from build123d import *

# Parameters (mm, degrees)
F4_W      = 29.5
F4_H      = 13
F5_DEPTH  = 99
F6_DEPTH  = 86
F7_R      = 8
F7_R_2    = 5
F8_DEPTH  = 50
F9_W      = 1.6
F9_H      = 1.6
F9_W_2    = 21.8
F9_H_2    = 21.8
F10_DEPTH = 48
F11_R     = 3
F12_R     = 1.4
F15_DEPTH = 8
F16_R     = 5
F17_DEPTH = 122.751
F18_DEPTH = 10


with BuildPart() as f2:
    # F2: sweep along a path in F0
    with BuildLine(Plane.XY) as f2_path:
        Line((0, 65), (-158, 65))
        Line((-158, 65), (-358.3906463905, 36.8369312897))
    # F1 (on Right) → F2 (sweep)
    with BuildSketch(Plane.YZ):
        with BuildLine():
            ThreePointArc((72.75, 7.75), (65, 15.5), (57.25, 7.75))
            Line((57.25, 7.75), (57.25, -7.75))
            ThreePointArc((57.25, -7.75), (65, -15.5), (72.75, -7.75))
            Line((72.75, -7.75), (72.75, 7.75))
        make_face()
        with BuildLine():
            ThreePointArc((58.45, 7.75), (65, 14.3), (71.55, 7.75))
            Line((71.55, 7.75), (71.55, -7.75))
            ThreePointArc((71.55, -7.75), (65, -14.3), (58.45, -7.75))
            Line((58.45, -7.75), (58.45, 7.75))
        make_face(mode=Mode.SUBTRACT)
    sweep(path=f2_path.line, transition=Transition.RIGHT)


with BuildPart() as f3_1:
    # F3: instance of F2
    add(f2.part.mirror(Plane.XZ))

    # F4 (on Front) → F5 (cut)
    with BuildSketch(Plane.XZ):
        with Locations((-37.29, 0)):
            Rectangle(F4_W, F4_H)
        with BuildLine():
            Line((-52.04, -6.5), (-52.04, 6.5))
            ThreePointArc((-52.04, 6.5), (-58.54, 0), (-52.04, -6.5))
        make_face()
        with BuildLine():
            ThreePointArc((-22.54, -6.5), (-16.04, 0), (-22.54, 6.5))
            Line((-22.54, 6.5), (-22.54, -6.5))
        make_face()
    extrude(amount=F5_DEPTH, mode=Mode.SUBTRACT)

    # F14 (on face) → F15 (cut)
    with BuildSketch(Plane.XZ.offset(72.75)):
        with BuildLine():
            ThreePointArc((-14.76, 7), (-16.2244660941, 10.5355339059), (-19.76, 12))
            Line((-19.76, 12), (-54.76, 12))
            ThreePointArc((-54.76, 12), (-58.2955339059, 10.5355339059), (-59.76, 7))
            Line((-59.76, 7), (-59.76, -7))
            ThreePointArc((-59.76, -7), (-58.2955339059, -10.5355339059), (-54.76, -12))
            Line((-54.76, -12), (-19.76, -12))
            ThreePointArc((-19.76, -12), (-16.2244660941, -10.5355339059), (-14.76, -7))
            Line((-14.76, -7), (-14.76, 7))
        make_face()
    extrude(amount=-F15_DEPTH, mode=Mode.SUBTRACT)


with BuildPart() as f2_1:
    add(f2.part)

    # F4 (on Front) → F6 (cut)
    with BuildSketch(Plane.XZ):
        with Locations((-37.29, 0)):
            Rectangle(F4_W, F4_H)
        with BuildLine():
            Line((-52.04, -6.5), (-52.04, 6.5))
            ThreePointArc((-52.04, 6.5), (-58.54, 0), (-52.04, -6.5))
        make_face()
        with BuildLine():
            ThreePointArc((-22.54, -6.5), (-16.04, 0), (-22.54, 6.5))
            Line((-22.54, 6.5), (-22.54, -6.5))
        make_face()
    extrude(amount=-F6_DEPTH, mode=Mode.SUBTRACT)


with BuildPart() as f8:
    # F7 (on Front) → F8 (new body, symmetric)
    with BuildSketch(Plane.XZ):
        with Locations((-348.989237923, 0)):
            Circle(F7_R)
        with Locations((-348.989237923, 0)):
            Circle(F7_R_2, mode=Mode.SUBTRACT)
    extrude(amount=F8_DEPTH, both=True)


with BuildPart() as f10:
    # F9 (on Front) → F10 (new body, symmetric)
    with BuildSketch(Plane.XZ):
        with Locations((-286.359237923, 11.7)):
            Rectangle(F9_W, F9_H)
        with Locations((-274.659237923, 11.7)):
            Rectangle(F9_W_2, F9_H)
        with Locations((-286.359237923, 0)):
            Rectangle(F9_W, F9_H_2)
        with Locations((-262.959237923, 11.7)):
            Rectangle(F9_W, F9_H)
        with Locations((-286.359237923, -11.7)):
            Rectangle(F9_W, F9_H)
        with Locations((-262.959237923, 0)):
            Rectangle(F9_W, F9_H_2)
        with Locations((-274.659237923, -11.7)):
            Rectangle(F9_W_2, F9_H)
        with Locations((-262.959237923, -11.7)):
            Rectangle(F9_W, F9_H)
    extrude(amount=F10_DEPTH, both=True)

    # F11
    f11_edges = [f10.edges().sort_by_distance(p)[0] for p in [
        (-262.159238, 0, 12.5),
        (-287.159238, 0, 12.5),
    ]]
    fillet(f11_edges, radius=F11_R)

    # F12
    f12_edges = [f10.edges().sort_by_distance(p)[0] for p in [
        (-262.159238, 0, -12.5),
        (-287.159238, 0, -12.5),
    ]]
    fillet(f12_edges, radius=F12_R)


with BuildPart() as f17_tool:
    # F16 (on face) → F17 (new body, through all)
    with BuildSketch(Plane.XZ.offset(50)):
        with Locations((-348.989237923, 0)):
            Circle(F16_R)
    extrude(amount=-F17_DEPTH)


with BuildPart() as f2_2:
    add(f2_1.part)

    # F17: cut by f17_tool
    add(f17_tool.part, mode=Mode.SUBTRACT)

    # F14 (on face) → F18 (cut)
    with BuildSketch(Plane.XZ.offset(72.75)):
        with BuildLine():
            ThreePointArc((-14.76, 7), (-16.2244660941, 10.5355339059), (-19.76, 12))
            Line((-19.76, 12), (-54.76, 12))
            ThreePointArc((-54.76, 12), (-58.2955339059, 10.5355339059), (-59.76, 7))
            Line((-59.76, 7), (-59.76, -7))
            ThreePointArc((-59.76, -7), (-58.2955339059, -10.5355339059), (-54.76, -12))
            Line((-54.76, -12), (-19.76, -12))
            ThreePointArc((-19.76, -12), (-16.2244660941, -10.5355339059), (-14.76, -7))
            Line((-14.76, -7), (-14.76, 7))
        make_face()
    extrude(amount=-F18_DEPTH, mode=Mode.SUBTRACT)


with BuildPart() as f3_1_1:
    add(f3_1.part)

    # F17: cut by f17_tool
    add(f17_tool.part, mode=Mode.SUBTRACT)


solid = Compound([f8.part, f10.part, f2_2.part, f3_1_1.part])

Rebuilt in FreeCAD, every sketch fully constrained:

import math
import FreeCAD as App
import Part
import Sketcher

V = App.Vector
Q = App.Units.Quantity


def edges_at(feature, points):
    """Names of the edges that pass closest to the given points."""
    edges = feature.Shape.Edges
    near = lambda p: min(range(len(edges)), key=lambda i: edges[i].distToShape(Part.Vertex(*p))[0])
    return sorted({f"Edge{near(p) + 1}" for p in points})

doc = App.newDocument("Part")
params = doc.addObject("Spreadsheet::Sheet", "Params")
for row, (alias, value) in enumerate([
    ("sketch1_radius", "7.75 mm"),
    ("sketch1_radius2", "6.55 mm"),
    ("sketch1_height", "15.5 mm"),
    ("sketch2_width", "158 mm"),
    ("sketch2_length", "202.36 mm"),
    ("sketch3_radius", "6.5 mm"),
    ("sketch3_width", "29.5 mm"),
    ("pocket1_length", "99 mm"),
    ("sketch4_radius", "5 mm"),
    ("sketch4_width", "35 mm"),
    ("sketch4_height", "14 mm"),
    ("pocket2_length", "8 mm"),
    ("sketch5_radius", "6.5 mm"),
    ("sketch5_width", "29.5 mm"),
    ("pocket3_length", "86 mm"),
    ("sketch6_diameter", "16 mm"),
    ("sketch6_diameter2", "10 mm"),
    ("pad1_length", "100 mm"),
    ("sketch7_width", "25 mm"),
    ("sketch7_width2", "21.8 mm"),
    ("pad2_length", "96 mm"),
    ("fillet_radius", "3 mm"),
    ("fillet2_radius", "1.4 mm"),
    ("sketch8_diameter", "10 mm"),
    ("pad3_length", "122.751 mm"),
    ("sketch9_radius", "5 mm"),
    ("sketch9_width", "35 mm"),
    ("sketch9_height", "14 mm"),
    ("pocket4_length", "10 mm"),
], start=1):
    params.set(f"A{row}", alias)
    params.set(f"B{row}", "=" + value)
    params.setAlias(f"B{row}", alias)

body = doc.addObject("PartDesign::Body", "Body")

sketch1 = body.newObject("Sketcher::SketchObject", "Sketch")
sketch1.AttachmentSupport = (doc.getObject("YZ_Plane"), [""])
sketch1.MapMode = "FlatFace"
sketch1.addGeometry([
    Part.ArcOfCircle(Part.Circle(V(65, 8, 0), V(0, 0, 1), 8), math.radians(0), math.radians(180)),
    Part.LineSegment(V(57, 8, 0), V(57, -8, 0)),
    Part.ArcOfCircle(Part.Circle(V(65, -8, 0), V(0, 0, 1), 8), math.radians(180), math.radians(360)),
    Part.LineSegment(V(73, -8, 0), V(73, 8, 0)),
    Part.LineSegment(V(58, -8, 0), V(58, 8, 0)),
    Part.ArcOfCircle(Part.Circle(V(65, 8, 0), V(0, 0, 1), 7), math.radians(0), math.radians(180)),
    Part.LineSegment(V(72, 8, 0), V(72, -8, 0)),
    Part.ArcOfCircle(Part.Circle(V(65, -8, 0), V(0, 0, 1), 7), math.radians(180), math.radians(360)),
], False)
sketch1.addConstraint([
    Sketcher.Constraint("Tangent", 0, 2, 1, 1),
    Sketcher.Constraint("Tangent", 1, 2, 2, 1),
    Sketcher.Constraint("Tangent", 2, 2, 3, 1),
    Sketcher.Constraint("Tangent", 3, 2, 0, 1),
    Sketcher.Constraint("Tangent", 4, 2, 5, 2),
    Sketcher.Constraint("Tangent", 5, 1, 6, 1),
    Sketcher.Constraint("Tangent", 6, 2, 7, 2),
    Sketcher.Constraint("Tangent", 7, 1, 4, 1),
    Sketcher.Constraint("Vertical", 1),
    Sketcher.Constraint("Vertical", 3),
    Sketcher.Constraint("Vertical", 4),
    Sketcher.Constraint("Vertical", 6),
    Sketcher.Constraint("Coincident", 5, 3, 0, 3),
    Sketcher.Constraint("Horizontal", 7, 3, 1, 2),
    Sketcher.Constraint("Radius", 0, Q("7.75 mm")),
    Sketcher.Constraint("Radius", 5, Q("6.55 mm")),
    Sketcher.Constraint("DistanceY", 1, 2, 1, 1, Q("15.5 mm")),
    Sketcher.Constraint("DistanceX", -1, 1, 0, 3, Q("65 mm")),
    Sketcher.Constraint("DistanceY", -1, 1, 0, 3, Q("7.75 mm")),
])
sketch1.setExpression("Constraints[14]", "Params.sketch1_radius")
sketch1.setExpression("Constraints[15]", "Params.sketch1_radius2")
sketch1.setExpression("Constraints[16]", "Params.sketch1_height")

sketch2 = body.newObject("Sketcher::SketchObject", "Sketch001")
sketch2.AttachmentSupport = (doc.getObject("XY_Plane"), [""])
sketch2.MapMode = "FlatFace"
sketch2.addGeometry([
    Part.LineSegment(V(0, 65, 0), V(-158, 65, 0)),
    Part.LineSegment(V(-158, 65, 0), V(-358, 37, 0)),
], False)
sketch2.addConstraint([
    Sketcher.Constraint("Coincident", 0, 2, 1, 1),
    Sketcher.Constraint("Horizontal", 0),
    Sketcher.Constraint("PointOnObject", 0, 1, -2),
    Sketcher.Constraint("DistanceX", 0, 2, 0, 1, Q("158 mm")),
    Sketcher.Constraint("Angle", 1, Q("-172 deg")),
    Sketcher.Constraint("DistanceY", -1, 1, 0, 1, Q("65 mm")),
    Sketcher.Constraint("Distance", 1, Q("202.36 mm")),
])
sketch2.setExpression("Constraints[3]", "Params.sketch2_width")
sketch2.setExpression("Constraints[6]", "Params.sketch2_length")
doc.recompute()

additivepipe = body.newObject("PartDesign::AdditivePipe", "AdditivePipe")
additivepipe.Profile = sketch1
additivepipe.Spine = (sketch2, ["Edge1", "Edge2"])
additivepipe.Transition = "Right corner"
body2 = doc.addObject("PartDesign::Body", "Body001")
doc.recompute()

mirroring = doc.addObject("Part::Mirroring", "Mirroring")
mirroring.Source = body
mirroring.Base = V(0, 0, 0)
mirroring.Normal = V(0, -1, 0)
body2.BaseFeature = mirroring
doc.recompute()

sketch3 = body2.newObject("Sketcher::SketchObject", "Sketch002")
sketch3.AttachmentSupport = (doc.getObject("XZ_Plane001"), [""])
sketch3.MapMode = "FlatFace"
sketch3.addGeometry([
    Part.LineSegment(V(-52, -6, 0), V(-23, -6, 0)),
    Part.ArcOfCircle(Part.Circle(V(-23, 0, 0), V(0, 0, 1), 6), math.radians(-90), math.radians(90)),
    Part.LineSegment(V(-23, 6, 0), V(-52, 6, 0)),
    Part.ArcOfCircle(Part.Circle(V(-52, 0, 0), V(0, 0, 1), 6), math.radians(90), math.radians(270)),
], False)
sketch3.addConstraint([
    Sketcher.Constraint("Tangent", 0, 2, 1, 1),
    Sketcher.Constraint("Tangent", 1, 2, 2, 1),
    Sketcher.Constraint("Tangent", 2, 2, 3, 1),
    Sketcher.Constraint("Tangent", 3, 2, 0, 1),
    Sketcher.Constraint("Horizontal", 0),
    Sketcher.Constraint("Horizontal", 2),
    Sketcher.Constraint("PointOnObject", 1, 3, -1),
    Sketcher.Constraint("Radius", 1, Q("6.5 mm")),
    Sketcher.Constraint("DistanceX", 0, 1, 0, 2, Q("29.5 mm")),
    Sketcher.Constraint("DistanceX", 1, 3, -1, 1, Q("22.54 mm")),
])
sketch3.setExpression("Constraints[7]", "Params.sketch3_radius")
sketch3.setExpression("Constraints[8]", "Params.sketch3_width")
pocket1 = body2.newObject("PartDesign::Pocket", "Pocket")
pocket1.Profile = sketch3
pocket1.setExpression("Length", "Params.pocket1_length")
pocket1.Reversed = True

sketch4 = body2.newObject("Sketcher::SketchObject", "Sketch003")
sketch4.AttachmentSupport = (doc.getObject("XZ_Plane001"), [""])
sketch4.MapMode = "FlatFace"
sketch4.AttachmentOffset = App.Placement(V(0, 0, 72.75), App.Rotation())
sketch4.addGeometry([
    Part.ArcOfCircle(Part.Circle(V(-20, 7, 0), V(0, 0, 1), 5), math.radians(0), math.radians(90)),
    Part.LineSegment(V(-20, 12, 0), V(-55, 12, 0)),
    Part.ArcOfCircle(Part.Circle(V(-55, 7, 0), V(0, 0, 1), 5), math.radians(90), math.radians(180)),
    Part.LineSegment(V(-60, 7, 0), V(-60, -7, 0)),
    Part.ArcOfCircle(Part.Circle(V(-55, -7, 0), V(0, 0, 1), 5), math.radians(180), math.radians(270)),
    Part.LineSegment(V(-55, -12, 0), V(-20, -12, 0)),
    Part.ArcOfCircle(Part.Circle(V(-20, -7, 0), V(0, 0, 1), 5), math.radians(-90), math.radians(0)),
    Part.LineSegment(V(-15, -7, 0), V(-15, 7, 0)),
], False)
sketch4.addConstraint([
    Sketcher.Constraint("Tangent", 0, 2, 1, 1),
    Sketcher.Constraint("Tangent", 1, 2, 2, 1),
    Sketcher.Constraint("Tangent", 2, 2, 3, 1),
    Sketcher.Constraint("Tangent", 3, 2, 4, 1),
    Sketcher.Constraint("Tangent", 4, 2, 5, 1),
    Sketcher.Constraint("Tangent", 5, 2, 6, 1),
    Sketcher.Constraint("Tangent", 6, 2, 7, 1),
    Sketcher.Constraint("Tangent", 7, 2, 0, 1),
    Sketcher.Constraint("Horizontal", 1),
    Sketcher.Constraint("Vertical", 3),
    Sketcher.Constraint("Horizontal", 5),
    Sketcher.Constraint("Vertical", 7),
    Sketcher.Constraint("Equal", 0, 2),
    Sketcher.Constraint("Equal", 2, 4),
    Sketcher.Constraint("Equal", 4, 6),
    Sketcher.Constraint("Radius", 0, Q("5 mm")),
    Sketcher.Constraint("DistanceX", 1, 2, 1, 1, Q("35 mm")),
    Sketcher.Constraint("DistanceY", 3, 2, 3, 1, Q("14 mm")),
    Sketcher.Constraint("DistanceY", -1, 1, 0, 3, Q("7 mm")),
    Sketcher.Constraint("DistanceX", 0, 3, -1, 1, Q("19.76 mm")),
])
sketch4.setExpression("Constraints[15]", "Params.sketch4_radius")
sketch4.setExpression("Constraints[16]", "Params.sketch4_width")
sketch4.setExpression("Constraints[17]", "Params.sketch4_height")
pocket2 = body2.newObject("PartDesign::Pocket", "Pocket001")
pocket2.Profile = sketch4
pocket2.setExpression("Length", "Params.pocket2_length")

sketch5 = body.newObject("Sketcher::SketchObject", "Sketch004")
sketch5.AttachmentSupport = (doc.getObject("XZ_Plane"), [""])
sketch5.MapMode = "FlatFace"
sketch5.addGeometry([
    Part.LineSegment(V(-52, -6, 0), V(-23, -6, 0)),
    Part.ArcOfCircle(Part.Circle(V(-23, 0, 0), V(0, 0, 1), 6), math.radians(-90), math.radians(90)),
    Part.LineSegment(V(-23, 6, 0), V(-52, 6, 0)),
    Part.ArcOfCircle(Part.Circle(V(-52, 0, 0), V(0, 0, 1), 6), math.radians(90), math.radians(270)),
], False)
sketch5.addConstraint([
    Sketcher.Constraint("Tangent", 0, 2, 1, 1),
    Sketcher.Constraint("Tangent", 1, 2, 2, 1),
    Sketcher.Constraint("Tangent", 2, 2, 3, 1),
    Sketcher.Constraint("Tangent", 3, 2, 0, 1),
    Sketcher.Constraint("Horizontal", 0),
    Sketcher.Constraint("Horizontal", 2),
    Sketcher.Constraint("PointOnObject", 1, 3, -1),
    Sketcher.Constraint("Radius", 1, Q("6.5 mm")),
    Sketcher.Constraint("DistanceX", 0, 1, 0, 2, Q("29.5 mm")),
    Sketcher.Constraint("DistanceX", 1, 3, -1, 1, Q("22.54 mm")),
])
sketch5.setExpression("Constraints[7]", "Params.sketch5_radius")
sketch5.setExpression("Constraints[8]", "Params.sketch5_width")
pocket3 = body.newObject("PartDesign::Pocket", "Pocket002")
pocket3.Profile = sketch5
pocket3.setExpression("Length", "Params.pocket3_length")
body3 = doc.addObject("PartDesign::Body", "Body002")

sketch6 = body3.newObject("Sketcher::SketchObject", "Sketch005")
sketch6.AttachmentSupport = (doc.getObject("XZ_Plane002"), [""])
sketch6.MapMode = "FlatFace"
sketch6.addGeometry([
    Part.Circle(V(-349, 0, 0), V(0, 0, 1), 8),
    Part.Circle(V(-349, 0, 0), V(0, 0, 1), 5),
], False)
sketch6.addConstraint([
    Sketcher.Constraint("Coincident", 1, 3, 0, 3),
    Sketcher.Constraint("PointOnObject", 0, 3, -1),
    Sketcher.Constraint("Diameter", 0, Q("16 mm")),
    Sketcher.Constraint("Diameter", 1, Q("10 mm")),
    Sketcher.Constraint("DistanceX", 0, 3, -1, 1, Q("348.989238 mm")),
])
sketch6.setExpression("Constraints[2]", "Params.sketch6_diameter")
sketch6.setExpression("Constraints[3]", "Params.sketch6_diameter2")
pad1 = body3.newObject("PartDesign::Pad", "Pad")
pad1.Profile = sketch6
pad1.setExpression("Length", "Params.pad1_length")
pad1.Midplane = True
body4 = doc.addObject("PartDesign::Body", "Body003")

sketch7 = body4.newObject("Sketcher::SketchObject", "Sketch006")
sketch7.AttachmentSupport = (doc.getObject("XZ_Plane003"), [""])
sketch7.MapMode = "FlatFace"
sketch7.addGeometry([
    Part.LineSegment(V(-287, -12, 0), V(-262, -12, 0)),
    Part.LineSegment(V(-262, -12, 0), V(-262, 12, 0)),
    Part.LineSegment(V(-262, 12, 0), V(-287, 12, 0)),
    Part.LineSegment(V(-287, 12, 0), V(-287, -12, 0)),
    Part.LineSegment(V(-264, -11, 0), V(-286, -11, 0)),
    Part.LineSegment(V(-286, -11, 0), V(-286, 11, 0)),
    Part.LineSegment(V(-286, 11, 0), V(-264, 11, 0)),
    Part.LineSegment(V(-264, 11, 0), V(-264, -11, 0)),
], False)
sketch7.addConstraint([
    Sketcher.Constraint("Coincident", 0, 2, 1, 1),
    Sketcher.Constraint("Coincident", 1, 2, 2, 1),
    Sketcher.Constraint("Coincident", 2, 2, 3, 1),
    Sketcher.Constraint("Coincident", 3, 2, 0, 1),
    Sketcher.Constraint("Coincident", 4, 2, 5, 1),
    Sketcher.Constraint("Coincident", 5, 2, 6, 1),
    Sketcher.Constraint("Coincident", 6, 2, 7, 1),
    Sketcher.Constraint("Coincident", 7, 2, 4, 1),
    Sketcher.Constraint("Horizontal", 0),
    Sketcher.Constraint("Vertical", 1),
    Sketcher.Constraint("Horizontal", 2),
    Sketcher.Constraint("Vertical", 3),
    Sketcher.Constraint("Horizontal", 4),
    Sketcher.Constraint("Vertical", 5),
    Sketcher.Constraint("Horizontal", 6),
    Sketcher.Constraint("Vertical", 7),
    Sketcher.Constraint("Equal", 2, 1),
    Sketcher.Constraint("Equal", 6, 5),
    Sketcher.Constraint("DistanceX", 0, 1, 0, 2, Q("25 mm")),
    Sketcher.Constraint("DistanceX", 4, 2, 4, 1, Q("21.8 mm")),
    Sketcher.Constraint("DistanceY", 0, 2, -1, 1, Q("12.5 mm")),
    Sketcher.Constraint("DistanceY", 4, 2, -1, 1, Q("10.9 mm")),
    Sketcher.Constraint("DistanceX", 3, 2, 4, 2, Q("1.6 mm")),
    Sketcher.Constraint("DistanceX", 0, 2, -1, 1, Q("262.159238 mm")),
])
sketch7.setExpression("Constraints[18]", "Params.sketch7_width")
sketch7.setExpression("Constraints[19]", "Params.sketch7_width2")
pad2 = body4.newObject("PartDesign::Pad", "Pad001")
pad2.Profile = sketch7
pad2.setExpression("Length", "Params.pad2_length")
pad2.Midplane = True
doc.recompute()

fillet = body4.newObject("PartDesign::Fillet", "Fillet")
fillet.Base = (pad2, edges_at(pad2, [(-262.159, 0, 12.5), (-287.159, 0, 12.5)]))
fillet.setExpression("Radius", "Params.fillet_radius")
doc.recompute()

fillet2 = body4.newObject("PartDesign::Fillet", "Fillet001")
fillet2.Base = (fillet, edges_at(fillet, [(-262.159, 0, -12.5), (-287.159, 0, -12.5)]))
fillet2.setExpression("Radius", "Params.fillet2_radius")
body5 = doc.addObject("PartDesign::Body", "Body004")

sketch8 = body5.newObject("Sketcher::SketchObject", "Sketch007")
sketch8.AttachmentSupport = (doc.getObject("XZ_Plane004"), [""])
sketch8.MapMode = "FlatFace"
sketch8.AttachmentOffset = App.Placement(V(0, 0, 50), App.Rotation())
sketch8.addGeometry(Part.Circle(V(-349, 0, 0), V(0, 0, 1), 5), False)
sketch8.addConstraint([
    Sketcher.Constraint("PointOnObject", 0, 3, -1),
    Sketcher.Constraint("Diameter", 0, Q("10 mm")),
    Sketcher.Constraint("DistanceX", 0, 3, -1, 1, Q("348.989238 mm")),
])
sketch8.setExpression("Constraints[1]", "Params.sketch8_diameter")
pad3 = body5.newObject("PartDesign::Pad", "Pad002")
pad3.Profile = sketch8
pad3.setExpression("Length", "Params.pad3_length")
pad3.Reversed = True
doc.recompute()

body6 = doc.addObject("PartDesign::Body", "Body005")
body6.BaseFeature = body5
boolean = body.newObject("PartDesign::Boolean", "Boolean")
boolean.Type = "Cut"
boolean.addObjects([body6])
doc.recompute()

sketch9 = body.newObject("Sketcher::SketchObject", "Sketch008")
sketch9.AttachmentSupport = (doc.getObject("XZ_Plane"), [""])
sketch9.MapMode = "FlatFace"
sketch9.AttachmentOffset = App.Placement(V(0, 0, 72.75), App.Rotation())
sketch9.addGeometry([
    Part.ArcOfCircle(Part.Circle(V(-20, 7, 0), V(0, 0, 1), 5), math.radians(0), math.radians(90)),
    Part.LineSegment(V(-20, 12, 0), V(-55, 12, 0)),
    Part.ArcOfCircle(Part.Circle(V(-55, 7, 0), V(0, 0, 1), 5), math.radians(90), math.radians(180)),
    Part.LineSegment(V(-60, 7, 0), V(-60, -7, 0)),
    Part.ArcOfCircle(Part.Circle(V(-55, -7, 0), V(0, 0, 1), 5), math.radians(180), math.radians(270)),
    Part.LineSegment(V(-55, -12, 0), V(-20, -12, 0)),
    Part.ArcOfCircle(Part.Circle(V(-20, -7, 0), V(0, 0, 1), 5), math.radians(-90), math.radians(0)),
    Part.LineSegment(V(-15, -7, 0), V(-15, 7, 0)),
], False)
sketch9.addConstraint([
    Sketcher.Constraint("Tangent", 0, 2, 1, 1),
    Sketcher.Constraint("Tangent", 1, 2, 2, 1),
    Sketcher.Constraint("Tangent", 2, 2, 3, 1),
    Sketcher.Constraint("Tangent", 3, 2, 4, 1),
    Sketcher.Constraint("Tangent", 4, 2, 5, 1),
    Sketcher.Constraint("Tangent", 5, 2, 6, 1),
    Sketcher.Constraint("Tangent", 6, 2, 7, 1),
    Sketcher.Constraint("Tangent", 7, 2, 0, 1),
    Sketcher.Constraint("Horizontal", 1),
    Sketcher.Constraint("Vertical", 3),
    Sketcher.Constraint("Horizontal", 5),
    Sketcher.Constraint("Vertical", 7),
    Sketcher.Constraint("Equal", 0, 2),
    Sketcher.Constraint("Equal", 2, 4),
    Sketcher.Constraint("Equal", 4, 6),
    Sketcher.Constraint("Radius", 0, Q("5 mm")),
    Sketcher.Constraint("DistanceX", 1, 2, 1, 1, Q("35 mm")),
    Sketcher.Constraint("DistanceY", 3, 2, 3, 1, Q("14 mm")),
    Sketcher.Constraint("DistanceY", -1, 1, 0, 3, Q("7 mm")),
    Sketcher.Constraint("DistanceX", 0, 3, -1, 1, Q("19.76 mm")),
])
sketch9.setExpression("Constraints[15]", "Params.sketch9_radius")
sketch9.setExpression("Constraints[16]", "Params.sketch9_width")
sketch9.setExpression("Constraints[17]", "Params.sketch9_height")
pocket4 = body.newObject("PartDesign::Pocket", "Pocket003")
pocket4.Profile = sketch9
pocket4.setExpression("Length", "Params.pocket4_length")
doc.recompute()

boolean2 = body2.newObject("PartDesign::Boolean", "Boolean001")
boolean2.Type = "Cut"
boolean2.addObjects([body5])
mirroring.Visibility = False

doc.recompute()
